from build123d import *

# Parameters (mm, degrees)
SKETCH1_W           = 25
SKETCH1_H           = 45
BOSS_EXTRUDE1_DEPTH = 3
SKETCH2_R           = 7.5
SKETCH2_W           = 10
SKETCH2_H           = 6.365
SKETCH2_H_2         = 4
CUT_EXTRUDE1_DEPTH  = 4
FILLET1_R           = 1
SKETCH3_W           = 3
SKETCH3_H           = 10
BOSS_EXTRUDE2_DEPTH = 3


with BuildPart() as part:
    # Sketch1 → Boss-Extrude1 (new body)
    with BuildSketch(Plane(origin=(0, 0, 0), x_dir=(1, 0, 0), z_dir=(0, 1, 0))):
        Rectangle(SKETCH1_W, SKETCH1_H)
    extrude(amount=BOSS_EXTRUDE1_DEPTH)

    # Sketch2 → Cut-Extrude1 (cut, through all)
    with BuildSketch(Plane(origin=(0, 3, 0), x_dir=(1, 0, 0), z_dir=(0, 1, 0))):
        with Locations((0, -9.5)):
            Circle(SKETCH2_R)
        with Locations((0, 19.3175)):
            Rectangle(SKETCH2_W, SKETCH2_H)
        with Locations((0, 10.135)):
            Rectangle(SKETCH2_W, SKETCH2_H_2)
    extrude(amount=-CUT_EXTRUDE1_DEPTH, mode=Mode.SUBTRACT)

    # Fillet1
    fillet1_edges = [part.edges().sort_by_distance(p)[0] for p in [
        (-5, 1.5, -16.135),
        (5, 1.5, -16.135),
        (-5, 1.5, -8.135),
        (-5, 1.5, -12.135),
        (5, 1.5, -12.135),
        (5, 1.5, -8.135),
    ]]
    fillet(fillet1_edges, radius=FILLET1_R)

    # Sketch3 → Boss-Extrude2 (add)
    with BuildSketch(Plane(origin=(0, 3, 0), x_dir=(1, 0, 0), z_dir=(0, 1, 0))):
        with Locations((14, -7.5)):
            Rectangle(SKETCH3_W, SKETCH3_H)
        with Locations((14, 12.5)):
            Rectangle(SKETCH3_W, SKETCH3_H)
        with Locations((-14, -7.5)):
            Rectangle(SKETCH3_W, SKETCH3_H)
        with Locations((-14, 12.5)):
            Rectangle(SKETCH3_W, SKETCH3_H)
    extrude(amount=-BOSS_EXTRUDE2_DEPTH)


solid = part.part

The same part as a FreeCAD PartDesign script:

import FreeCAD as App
import Part
import Sketcher
Q = App.Units.Quantity


def edges_at(feature, points):
    """Names of the edges that pass closest to the given points."""
    edges = feature.Shape.Edges
    near = lambda p: min(range(len(edges)), key=lambda i: edges[i].distToShape(Part.Vertex(*p))[0])
    return sorted({f"Edge{near(p) + 1}" for p in points})


def add_polygon(sketch, points):
    """Adds a closed chain of lines whose ends are joined by coincident constraints."""
    first, n = sketch.GeometryCount, len(points)
    for a, b in zip(points, points[1:] + points[:1]):
        sketch.addGeometry(Part.LineSegment(App.Vector(*a, 0), App.Vector(*b, 0)), False)
    for i in range(n):
        sketch.addConstraint(Sketcher.Constraint("Coincident", first + i, 2, first + (i + 1) % n, 1))

doc = App.newDocument("Part")
body = doc.addObject("PartDesign::Body", "Body")

# Sketch on XZ plane
sketch1 = body.newObject("Sketcher::SketchObject", "Sketch")
sketch1.AttachmentSupport = (doc.getObject("XZ_Plane"), [""])
sketch1.MapMode = "FlatFace"
add_polygon(sketch1, [(-12.5, -22.5), (-12.5, 22.5), (12.5, 22.5), (12.5, -22.5)])  # lines 0-3
sketch1.addConstraint([
    Sketcher.Constraint("Vertical", 0),
    Sketcher.Constraint("Horizontal", 1),
    Sketcher.Constraint("Vertical", 2),
    Sketcher.Constraint("Horizontal", 3),
    Sketcher.Constraint("Symmetric", 0, 2, 2, 2, -1, 1),
    Sketcher.Constraint("DistanceX", 1, 1, 1, 2, Q("25 mm")),
    Sketcher.Constraint("DistanceY", 0, 1, 0, 2, Q("45 mm")),
])
pad1 = body.newObject("PartDesign::Pad", "Pad")
pad1.Profile = sketch1
pad1.Length = 3
pad1.Reversed = True

# Sketch on XZ plane
sketch2 = body.newObject("Sketcher::SketchObject", "Sketch001")
sketch2.AttachmentSupport = (doc.getObject("XZ_Plane"), [""])
sketch2.MapMode = "FlatFace"
sketch2.AttachmentOffset = App.Placement(App.Vector(0, 0, -3), App.Rotation())
sketch2.addGeometry(Part.Circle(App.Vector(0, 9.5, 0), App.Vector(0, 0, 1), 7.5), False)  # 0
add_polygon(sketch2, [(-5, -22.5), (-5, -16.135), (5, -16.135), (5, -22.5)])  # lines 1-4
add_polygon(sketch2, [(-5, -12.135), (-5, -8.135), (5, -8.135), (5, -12.135)])  # lines 5-8
sketch2.addConstraint([
    Sketcher.Constraint("Vertical", 1),
    Sketcher.Constraint("Horizontal", 2),
    Sketcher.Constraint("Vertical", 3),
    Sketcher.Constraint("Horizontal", 4),
    Sketcher.Constraint("Vertical", 5),
    Sketcher.Constraint("Horizontal", 6),
    Sketcher.Constraint("Vertical", 7),
    Sketcher.Constraint("Horizontal", 8),
    Sketcher.Constraint("PointOnObject", 0, 3, -2),
    Sketcher.Constraint("Vertical", 4, 2, 5, 2),
    Sketcher.Constraint("Vertical", 3, 2, 6, 2),
    Sketcher.Constraint("Diameter", 0, Q("15 mm")),
    Sketcher.Constraint("DistanceX", 2, 1, 2, 2, Q("10 mm")),
    Sketcher.Constraint("DistanceY", 5, 1, 5, 2, Q("4 mm")),
    Sketcher.Constraint("DistanceX", 1, 2, -1, 1, Q("5 mm")),
    Sketcher.Constraint("DistanceY", 3, 2, 0, 3, Q("32 mm")),
    Sketcher.Constraint("DistanceY", 1, 2, 5, 2, Q("8 mm")),
    Sketcher.Constraint("DistanceY", -1, 1, 0, 3, Q("9.5 mm")),
    Sketcher.Constraint("DistanceY", 1, 1, 1, 2, Q("6.365 mm")),
])
pocket1 = body.newObject("PartDesign::Pocket", "Pocket")
pocket1.Profile = sketch2
pocket1.Type = "ThroughAll"
pocket1.Reversed = True
doc.recompute()

fillet = body.newObject("PartDesign::Fillet", "Fillet")
fillet.Base = (pocket1, edges_at(pocket1, [
    (-5, 1.5, -16.135),
    (5, 1.5, -16.135),
    (-5, 1.5, -8.135),
    (-5, 1.5, -12.135),
    (5, 1.5, -12.135),
    (5, 1.5, -8.135),
]))
fillet.Radius = 1

# Sketch on XZ plane
sketch3 = body.newObject("Sketcher::SketchObject", "Sketch002")
sketch3.AttachmentSupport = (doc.getObject("XZ_Plane"), [""])
sketch3.MapMode = "FlatFace"
sketch3.AttachmentOffset = App.Placement(App.Vector(0, 0, -3), App.Rotation())
add_polygon(sketch3, [(12.5, 2.5), (12.5, 12.5), (15.5, 12.5), (15.5, 2.5)])  # lines 0-3
add_polygon(sketch3, [(12.5, -17.5), (12.5, -7.5), (15.5, -7.5), (15.5, -17.5)])  # lines 4-7
add_polygon(sketch3, [(-15.5, 2.5), (-15.5, 12.5), (-12.5, 12.5), (-12.5, 2.5)])  # lines 8-11
add_polygon(sketch3, [(-15.5, -17.5), (-15.5, -7.5), (-12.5, -7.5), (-12.5, -17.5)])  # lines 12-15
sketch3.addConstraint([
    Sketcher.Constraint("Vertical", 0),
    Sketcher.Constraint("Horizontal", 1),
    Sketcher.Constraint("Vertical", 2),
    Sketcher.Constraint("Horizontal", 3),
    Sketcher.Constraint("Vertical", 4),
    Sketcher.Constraint("Horizontal", 5),
    Sketcher.Constraint("Vertical", 6),
    Sketcher.Constraint("Horizontal", 7),
    Sketcher.Constraint("Vertical", 8),
    Sketcher.Constraint("Horizontal", 9),
    Sketcher.Constraint("Vertical", 10),
    Sketcher.Constraint("Horizontal", 11),
    Sketcher.Constraint("Vertical", 12),
    Sketcher.Constraint("Horizontal", 13),
    Sketcher.Constraint("Vertical", 14),
    Sketcher.Constraint("Horizontal", 15),
    Sketcher.Constraint("Symmetric", 1, 2, 8, 2, -2),
    Sketcher.Constraint("Symmetric", 3, 2, 10, 2, -2),
    Sketcher.Constraint("Symmetric", 5, 2, 12, 2, -2),
    Sketcher.Constraint("Symmetric", 7, 2, 14, 2, -2),
    Sketcher.Constraint("Vertical", 3, 2, 4, 2),
    Sketcher.Constraint("Vertical", 2, 2, 5, 2),
    Sketcher.Constraint("Equal", 2, 4),
    Sketcher.Constraint("DistanceX", 1, 1, 1, 2, Q("3 mm")),
    Sketcher.Constraint("DistanceY", 0, 1, 0, 2, Q("10 mm")),
    Sketcher.Constraint("DistanceY", 4, 2, 3, 2, Q("10 mm")),
    Sketcher.Constraint("DistanceX", 8, 2, 0, 2, Q("28 mm")),
    Sketcher.Constraint("DistanceY", -1, 1, 0, 2, Q("12.5 mm")),
])
pad2 = body.newObject("PartDesign::Pad", "Pad001")
pad2.Profile = sketch3
pad2.Length = 3

doc.recompute()
